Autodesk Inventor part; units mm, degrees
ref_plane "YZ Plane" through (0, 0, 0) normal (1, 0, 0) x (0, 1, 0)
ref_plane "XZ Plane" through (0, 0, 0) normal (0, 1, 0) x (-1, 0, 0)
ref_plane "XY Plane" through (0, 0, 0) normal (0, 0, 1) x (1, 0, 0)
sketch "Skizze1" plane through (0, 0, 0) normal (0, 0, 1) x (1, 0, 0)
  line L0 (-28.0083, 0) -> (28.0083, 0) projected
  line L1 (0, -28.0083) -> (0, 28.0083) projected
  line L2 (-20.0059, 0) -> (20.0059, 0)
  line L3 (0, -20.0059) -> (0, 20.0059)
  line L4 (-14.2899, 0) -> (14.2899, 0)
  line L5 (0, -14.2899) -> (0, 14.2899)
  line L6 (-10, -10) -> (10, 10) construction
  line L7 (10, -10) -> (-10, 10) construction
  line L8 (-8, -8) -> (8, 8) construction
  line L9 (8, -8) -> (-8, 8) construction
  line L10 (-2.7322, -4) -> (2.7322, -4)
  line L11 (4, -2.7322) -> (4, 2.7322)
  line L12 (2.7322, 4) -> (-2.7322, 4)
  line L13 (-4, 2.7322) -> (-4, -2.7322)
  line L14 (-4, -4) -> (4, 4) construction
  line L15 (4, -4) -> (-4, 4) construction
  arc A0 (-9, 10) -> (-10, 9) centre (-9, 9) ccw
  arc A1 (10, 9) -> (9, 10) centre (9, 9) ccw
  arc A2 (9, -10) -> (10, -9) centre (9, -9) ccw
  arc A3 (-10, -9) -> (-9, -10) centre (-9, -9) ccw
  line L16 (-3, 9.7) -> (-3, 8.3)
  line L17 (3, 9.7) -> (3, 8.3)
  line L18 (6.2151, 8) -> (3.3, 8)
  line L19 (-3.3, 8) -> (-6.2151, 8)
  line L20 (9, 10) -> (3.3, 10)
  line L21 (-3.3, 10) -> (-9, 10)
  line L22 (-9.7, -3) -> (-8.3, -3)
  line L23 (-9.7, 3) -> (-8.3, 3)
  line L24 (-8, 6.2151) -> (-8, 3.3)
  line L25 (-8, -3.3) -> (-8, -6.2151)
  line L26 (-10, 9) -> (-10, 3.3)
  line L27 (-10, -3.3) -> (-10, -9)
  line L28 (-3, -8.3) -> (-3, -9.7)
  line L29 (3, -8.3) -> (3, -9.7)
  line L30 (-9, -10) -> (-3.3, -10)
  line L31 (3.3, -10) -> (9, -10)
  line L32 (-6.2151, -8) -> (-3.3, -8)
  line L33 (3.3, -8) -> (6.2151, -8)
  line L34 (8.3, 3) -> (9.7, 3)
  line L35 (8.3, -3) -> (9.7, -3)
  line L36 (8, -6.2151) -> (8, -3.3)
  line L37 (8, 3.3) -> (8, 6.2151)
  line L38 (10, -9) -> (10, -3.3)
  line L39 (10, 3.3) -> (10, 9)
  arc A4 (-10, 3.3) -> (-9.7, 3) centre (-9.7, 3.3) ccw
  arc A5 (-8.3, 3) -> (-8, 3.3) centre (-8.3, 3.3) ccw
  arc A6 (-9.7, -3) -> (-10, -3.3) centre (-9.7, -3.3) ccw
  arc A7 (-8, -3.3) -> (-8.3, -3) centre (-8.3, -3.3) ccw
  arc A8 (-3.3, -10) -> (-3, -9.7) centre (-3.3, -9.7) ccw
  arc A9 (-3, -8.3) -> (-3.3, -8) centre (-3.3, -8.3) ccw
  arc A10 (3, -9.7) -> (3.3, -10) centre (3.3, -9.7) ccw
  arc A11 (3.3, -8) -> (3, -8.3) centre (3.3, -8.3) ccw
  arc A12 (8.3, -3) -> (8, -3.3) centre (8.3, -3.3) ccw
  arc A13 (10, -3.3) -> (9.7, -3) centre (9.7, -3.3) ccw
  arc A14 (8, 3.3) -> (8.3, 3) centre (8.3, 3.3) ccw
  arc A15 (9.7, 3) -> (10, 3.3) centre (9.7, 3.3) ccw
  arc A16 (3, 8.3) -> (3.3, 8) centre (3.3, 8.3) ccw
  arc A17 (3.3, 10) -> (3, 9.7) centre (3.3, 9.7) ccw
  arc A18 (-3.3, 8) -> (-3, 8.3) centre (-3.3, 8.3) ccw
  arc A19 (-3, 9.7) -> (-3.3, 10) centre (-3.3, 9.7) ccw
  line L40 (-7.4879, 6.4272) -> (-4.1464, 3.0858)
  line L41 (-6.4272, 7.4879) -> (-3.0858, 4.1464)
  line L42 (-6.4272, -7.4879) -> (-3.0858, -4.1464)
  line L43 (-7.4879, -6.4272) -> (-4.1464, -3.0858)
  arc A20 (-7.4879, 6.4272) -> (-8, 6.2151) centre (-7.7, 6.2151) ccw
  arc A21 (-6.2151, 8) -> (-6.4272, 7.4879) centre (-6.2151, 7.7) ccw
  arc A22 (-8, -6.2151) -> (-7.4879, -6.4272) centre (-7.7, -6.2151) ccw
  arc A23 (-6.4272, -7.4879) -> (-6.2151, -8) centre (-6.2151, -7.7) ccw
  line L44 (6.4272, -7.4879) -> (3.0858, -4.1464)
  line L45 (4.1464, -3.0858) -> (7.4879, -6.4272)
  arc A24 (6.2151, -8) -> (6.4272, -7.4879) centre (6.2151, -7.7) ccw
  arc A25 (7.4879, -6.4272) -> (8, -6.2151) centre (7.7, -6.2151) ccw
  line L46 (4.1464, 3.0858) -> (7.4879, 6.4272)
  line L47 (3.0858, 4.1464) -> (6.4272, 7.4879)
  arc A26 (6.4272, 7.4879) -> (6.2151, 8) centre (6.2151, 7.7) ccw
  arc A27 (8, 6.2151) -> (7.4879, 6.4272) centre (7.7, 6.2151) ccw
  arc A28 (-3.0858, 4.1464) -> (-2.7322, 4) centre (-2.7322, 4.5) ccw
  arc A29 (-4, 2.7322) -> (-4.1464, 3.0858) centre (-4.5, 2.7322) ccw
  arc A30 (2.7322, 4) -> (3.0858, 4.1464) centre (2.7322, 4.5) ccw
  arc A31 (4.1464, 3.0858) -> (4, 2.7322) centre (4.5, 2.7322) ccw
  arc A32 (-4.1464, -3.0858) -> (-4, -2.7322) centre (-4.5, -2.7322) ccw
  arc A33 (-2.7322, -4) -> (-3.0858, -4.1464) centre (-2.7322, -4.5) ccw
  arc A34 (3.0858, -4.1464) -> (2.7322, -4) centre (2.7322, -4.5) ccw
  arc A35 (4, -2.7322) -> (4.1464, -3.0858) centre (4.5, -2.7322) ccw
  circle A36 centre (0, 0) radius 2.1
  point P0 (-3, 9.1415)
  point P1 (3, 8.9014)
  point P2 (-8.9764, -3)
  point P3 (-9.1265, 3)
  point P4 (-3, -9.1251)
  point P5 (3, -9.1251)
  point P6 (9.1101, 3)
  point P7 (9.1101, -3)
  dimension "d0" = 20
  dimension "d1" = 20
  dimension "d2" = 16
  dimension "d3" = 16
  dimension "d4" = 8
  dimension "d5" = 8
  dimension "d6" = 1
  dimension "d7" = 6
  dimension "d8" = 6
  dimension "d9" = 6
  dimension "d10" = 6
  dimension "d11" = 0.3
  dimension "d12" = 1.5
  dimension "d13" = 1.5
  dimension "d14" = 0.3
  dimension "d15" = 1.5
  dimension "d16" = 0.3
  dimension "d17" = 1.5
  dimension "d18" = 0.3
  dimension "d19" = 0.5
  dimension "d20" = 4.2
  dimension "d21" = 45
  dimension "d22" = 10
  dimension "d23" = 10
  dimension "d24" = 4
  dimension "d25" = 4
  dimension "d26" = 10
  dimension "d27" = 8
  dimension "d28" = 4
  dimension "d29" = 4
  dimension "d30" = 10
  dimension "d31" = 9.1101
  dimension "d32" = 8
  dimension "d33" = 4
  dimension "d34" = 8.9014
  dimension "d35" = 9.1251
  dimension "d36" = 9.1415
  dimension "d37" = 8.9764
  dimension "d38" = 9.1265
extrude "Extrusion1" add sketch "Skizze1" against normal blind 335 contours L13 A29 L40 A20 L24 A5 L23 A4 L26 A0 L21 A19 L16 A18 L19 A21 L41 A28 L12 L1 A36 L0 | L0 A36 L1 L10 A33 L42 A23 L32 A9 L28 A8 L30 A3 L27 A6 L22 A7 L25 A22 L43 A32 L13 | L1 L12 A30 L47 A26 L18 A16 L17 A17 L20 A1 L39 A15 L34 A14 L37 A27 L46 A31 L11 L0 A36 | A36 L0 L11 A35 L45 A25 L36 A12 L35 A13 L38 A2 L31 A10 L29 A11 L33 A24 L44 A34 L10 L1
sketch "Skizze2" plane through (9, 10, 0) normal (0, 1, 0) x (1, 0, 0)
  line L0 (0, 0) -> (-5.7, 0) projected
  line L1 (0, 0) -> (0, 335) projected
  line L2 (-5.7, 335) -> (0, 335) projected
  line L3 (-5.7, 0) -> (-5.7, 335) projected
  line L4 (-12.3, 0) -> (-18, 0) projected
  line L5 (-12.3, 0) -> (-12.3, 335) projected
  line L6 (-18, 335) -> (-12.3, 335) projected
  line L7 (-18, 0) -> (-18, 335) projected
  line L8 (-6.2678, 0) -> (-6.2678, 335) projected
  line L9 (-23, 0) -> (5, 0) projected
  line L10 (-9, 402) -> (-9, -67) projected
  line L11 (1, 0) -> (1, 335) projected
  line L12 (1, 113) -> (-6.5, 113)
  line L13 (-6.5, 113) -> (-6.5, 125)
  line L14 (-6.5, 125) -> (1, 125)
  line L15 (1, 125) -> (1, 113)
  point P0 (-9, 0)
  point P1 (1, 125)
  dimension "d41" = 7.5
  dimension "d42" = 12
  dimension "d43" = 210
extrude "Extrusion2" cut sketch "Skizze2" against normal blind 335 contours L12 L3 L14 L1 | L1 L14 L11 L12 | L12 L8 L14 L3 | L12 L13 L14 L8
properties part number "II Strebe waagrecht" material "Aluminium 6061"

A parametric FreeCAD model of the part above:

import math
import FreeCAD as App
import Part
import Sketcher
Q = App.Units.Quantity

doc = App.newDocument("Part")
body = doc.addObject("PartDesign::Body", "Body")

# Sketch on XY plane
sketch1 = body.newObject("Sketcher::SketchObject", "Sketch")
sketch1.AttachmentSupport = (doc.getObject("XY_Plane"), [""])
sketch1.MapMode = "FlatFace"
sketch1.addGeometry([
    Part.LineSegment(App.Vector(-4, 2.7322, 0), App.Vector(-4, -2.7322, 0)),  # 0
    Part.ArcOfCircle(Part.Circle(App.Vector(-4.5, -2.7322, 0), App.Vector(0, 0, 1), 0.500066), math.radians(-45), math.radians(0)),  # 1
    Part.LineSegment(App.Vector(-4.1464, -3.0858, 0), App.Vector(-7.4879, -6.4272, 0)),  # 2
    Part.ArcOfCircle(Part.Circle(App.Vector(-7.7, -6.2151, 0), App.Vector(0, 0, 1), 0.3), math.radians(180), math.radians(315)),  # 3
    Part.LineSegment(App.Vector(-8, -6.2151, 0), App.Vector(-8, -3.3, 0)),  # 4
    Part.ArcOfCircle(Part.Circle(App.Vector(-8.3, -3.3, 0), App.Vector(0, 0, 1), 0.3), math.radians(0), math.radians(90)),  # 5
    Part.LineSegment(App.Vector(-8.3, -3, 0), App.Vector(-9.7, -3, 0)),  # 6
    Part.ArcOfCircle(Part.Circle(App.Vector(-9.7, -3.3, 0), App.Vector(0, 0, 1), 0.3), math.radians(90), math.radians(180)),  # 7
    Part.LineSegment(App.Vector(-10, -3.3, 0), App.Vector(-10, -9, 0)),  # 8
    Part.ArcOfCircle(Part.Circle(App.Vector(-9, -9, 0), App.Vector(0, 0, 1), 1), math.radians(180), math.radians(270)),  # 9
    Part.LineSegment(App.Vector(-9, -10, 0), App.Vector(-3.3, -10, 0)),  # 10
    Part.ArcOfCircle(Part.Circle(App.Vector(-3.3, -9.7, 0), App.Vector(0, 0, 1), 0.3), math.radians(-90), math.radians(0)),  # 11
    Part.LineSegment(App.Vector(-3, -9.7, 0), App.Vector(-3, -8.3, 0)),  # 12
    Part.ArcOfCircle(Part.Circle(App.Vector(-3.3, -8.3, 0), App.Vector(0, 0, 1), 0.3), math.radians(0), math.radians(90)),  # 13
    Part.LineSegment(App.Vector(-3.3, -8, 0), App.Vector(-6.2151, -8, 0)),  # 14
    Part.ArcOfCircle(Part.Circle(App.Vector(-6.2151, -7.7, 0), App.Vector(0, 0, 1), 0.299955), math.radians(135), math.radians(270)),  # 15
    Part.LineSegment(App.Vector(-6.4272, -7.4879, 0), App.Vector(-3.0858, -4.1464, 0)),  # 16
    Part.ArcOfCircle(Part.Circle(App.Vector(-2.7322, -4.5, 0), App.Vector(0, 0, 1), 0.5), math.radians(90), math.radians(135)),  # 17
    Part.LineSegment(App.Vector(-2.7322, -4, 0), App.Vector(2.7322, -4, 0)),  # 18
    Part.ArcOfCircle(Part.Circle(App.Vector(2.7322, -4.5, 0), App.Vector(0, 0, 1), 0.500066), math.radians(45), math.radians(90)),  # 19
    Part.LineSegment(App.Vector(3.0858, -4.1464, 0), App.Vector(6.4272, -7.4879, 0)),  # 20
    Part.ArcOfCircle(Part.Circle(App.Vector(6.2151, -7.7, 0), App.Vector(0, 0, 1), 0.3), math.radians(-90), math.radians(45)),  # 21
    Part.LineSegment(App.Vector(6.2151, -8, 0), App.Vector(3.3, -8, 0)),  # 22
    Part.ArcOfCircle(Part.Circle(App.Vector(3.3, -8.3, 0), App.Vector(0, 0, 1), 0.3), math.radians(90), math.radians(180)),  # 23
    Part.LineSegment(App.Vector(3, -8.3, 0), App.Vector(3, -9.7, 0)),  # 24
    Part.ArcOfCircle(Part.Circle(App.Vector(3.3, -9.7, 0), App.Vector(0, 0, 1), 0.3), math.radians(180), math.radians(270)),  # 25
    Part.LineSegment(App.Vector(3.3, -10, 0), App.Vector(9, -10, 0)),  # 26
    Part.ArcOfCircle(Part.Circle(App.Vector(9, -9, 0), App.Vector(0, 0, 1), 1), math.radians(-90), math.radians(0)),  # 27
    Part.LineSegment(App.Vector(10, -9, 0), App.Vector(10, -3.3, 0)),  # 28
    Part.ArcOfCircle(Part.Circle(App.Vector(9.7, -3.3, 0), App.Vector(0, 0, 1), 0.3), math.radians(0), math.radians(90)),  # 29
    Part.LineSegment(App.Vector(9.7, -3, 0), App.Vector(8.3, -3, 0)),  # 30
    Part.ArcOfCircle(Part.Circle(App.Vector(8.3, -3.3, 0), App.Vector(0, 0, 1), 0.3), math.radians(90), math.radians(180)),  # 31
    Part.LineSegment(App.Vector(8, -3.3, 0), App.Vector(8, -6.2151, 0)),  # 32
    Part.ArcOfCircle(Part.Circle(App.Vector(7.7, -6.2151, 0), App.Vector(0, 0, 1), 0.299955), math.radians(-135), math.radians(0)),  # 33
    Part.LineSegment(App.Vector(7.4879, -6.4272, 0), App.Vector(4.1464, -3.0858, 0)),  # 34
    Part.ArcOfCircle(Part.Circle(App.Vector(4.5, -2.7322, 0), App.Vector(0, 0, 1), 0.5), math.radians(180), math.radians(225)),  # 35
    Part.LineSegment(App.Vector(4, -2.7322, 0), App.Vector(4, 2.7322, 0)),  # 36
    Part.ArcOfCircle(Part.Circle(App.Vector(4.5, 2.7322, 0), App.Vector(0, 0, 1), 0.500066), math.radians(135), math.radians(180)),  # 37
    Part.LineSegment(App.Vector(4.1464, 3.0858, 0), App.Vector(7.4879, 6.4272, 0)),  # 38
    Part.ArcOfCircle(Part.Circle(App.Vector(7.7, 6.2151, 0), App.Vector(0, 0, 1), 0.3), math.radians(0), math.radians(135)),  # 39
    Part.LineSegment(App.Vector(8, 6.2151, 0), App.Vector(8, 3.3, 0)),  # 40
    Part.ArcOfCircle(Part.Circle(App.Vector(8.3, 3.3, 0), App.Vector(0, 0, 1), 0.3), math.radians(180), math.radians(270)),  # 41
    Part.LineSegment(App.Vector(8.3, 3, 0), App.Vector(9.7, 3, 0)),  # 42
    Part.ArcOfCircle(Part.Circle(App.Vector(9.7, 3.3, 0), App.Vector(0, 0, 1), 0.3), math.radians(-90), math.radians(0)),  # 43
    Part.LineSegment(App.Vector(10, 3.3, 0), App.Vector(10, 9, 0)),  # 44
    Part.ArcOfCircle(Part.Circle(App.Vector(9, 9, 0), App.Vector(0, 0, 1), 1), math.radians(0), math.radians(90)),  # 45
    Part.LineSegment(App.Vector(9, 10, 0), App.Vector(3.3, 10, 0)),  # 46
    Part.ArcOfCircle(Part.Circle(App.Vector(3.3, 9.7, 0), App.Vector(0, 0, 1), 0.3), math.radians(90), math.radians(180)),  # 47
    Part.LineSegment(App.Vector(3, 9.7, 0), App.Vector(3, 8.3, 0)),  # 48
    Part.ArcOfCircle(Part.Circle(App.Vector(3.3, 8.3, 0), App.Vector(0, 0, 1), 0.3), math.radians(180), math.radians(270)),  # 49
    Part.LineSegment(App.Vector(3.3, 8, 0), App.Vector(6.2151, 8, 0)),  # 50
    Part.ArcOfCircle(Part.Circle(App.Vector(6.2151, 7.7, 0), App.Vector(0, 0, 1), 0.299955), math.radians(-45), math.radians(90)),  # 51
    Part.LineSegment(App.Vector(6.4272, 7.4879, 0), App.Vector(3.0858, 4.1464, 0)),  # 52
    Part.ArcOfCircle(Part.Circle(App.Vector(2.7322, 4.5, 0), App.Vector(0, 0, 1), 0.5), math.radians(-90), math.radians(-45)),  # 53
    Part.LineSegment(App.Vector(2.7322, 4, 0), App.Vector(-2.7322, 4, 0)),  # 54
    Part.ArcOfCircle(Part.Circle(App.Vector(-2.7322, 4.5, 0), App.Vector(0, 0, 1), 0.500066), math.radians(-135), math.radians(-90)),  # 55
    Part.LineSegment(App.Vector(-3.0858, 4.1464, 0), App.Vector(-6.4272, 7.4879, 0)),  # 56
    Part.ArcOfCircle(Part.Circle(App.Vector(-6.2151, 7.7, 0), App.Vector(0, 0, 1), 0.3), math.radians(90), math.radians(225)),  # 57
    Part.LineSegment(App.Vector(-6.2151, 8, 0), App.Vector(-3.3, 8, 0)),  # 58
    Part.ArcOfCircle(Part.Circle(App.Vector(-3.3, 8.3, 0), App.Vector(0, 0, 1), 0.3), math.radians(-90), math.radians(0)),  # 59
    Part.LineSegment(App.Vector(-3, 8.3, 0), App.Vector(-3, 9.7, 0)),  # 60
    Part.ArcOfCircle(Part.Circle(App.Vector(-3.3, 9.7, 0), App.Vector(0, 0, 1), 0.3), math.radians(0), math.radians(90)),  # 61
    Part.LineSegment(App.Vector(-3.3, 10, 0), App.Vector(-9, 10, 0)),  # 62
    Part.ArcOfCircle(Part.Circle(App.Vector(-9, 9, 0), App.Vector(0, 0, 1), 1), math.radians(90), math.radians(180)),  # 63
    Part.LineSegment(App.Vector(-10, 9, 0), App.Vector(-10, 3.3, 0)),  # 64
    Part.ArcOfCircle(Part.Circle(App.Vector(-9.7, 3.3, 0), App.Vector(0, 0, 1), 0.3), math.radians(180), math.radians(270)),  # 65
    Part.LineSegment(App.Vector(-9.7, 3, 0), App.Vector(-8.3, 3, 0)),  # 66
    Part.ArcOfCircle(Part.Circle(App.Vector(-8.3, 3.3, 0), App.Vector(0, 0, 1), 0.3), math.radians(-90), math.radians(0)),  # 67
    Part.LineSegment(App.Vector(-8, 3.3, 0), App.Vector(-8, 6.2151, 0)),  # 68
    Part.ArcOfCircle(Part.Circle(App.Vector(-7.7, 6.2151, 0), App.Vector(0, 0, 1), 0.299955), math.radians(45), math.radians(180)),  # 69
    Part.LineSegment(App.Vector(-7.4879, 6.4272, 0), App.Vector(-4.1464, 3.0858, 0)),  # 70
    Part.ArcOfCircle(Part.Circle(App.Vector(-4.5, 2.7322, 0), App.Vector(0, 0, 1), 0.5), math.radians(0), math.radians(45)),  # 71
    Part.Circle(App.Vector(0, 0, 0), App.Vector(0, 0, 1), 2.1),  # 72
], False)
sketch1.addConstraint([
    Sketcher.Constraint("Tangent", 0, 2, 1, 2),
    Sketcher.Constraint("Tangent", 1, 1, 2, 1),
    Sketcher.Constraint("Tangent", 2, 2, 3, 2),
    Sketcher.Constraint("Tangent", 3, 1, 4, 1),
    Sketcher.Constraint("Tangent", 4, 2, 5, 1),
    Sketcher.Constraint("Tangent", 5, 2, 6, 1),
    Sketcher.Constraint("Tangent", 6, 2, 7, 1),
    Sketcher.Constraint("Tangent", 7, 2, 8, 1),
    Sketcher.Constraint("Tangent", 8, 2, 9, 1),
    Sketcher.Constraint("Tangent", 9, 2, 10, 1),
    Sketcher.Constraint("Tangent", 10, 2, 11, 1),
    Sketcher.Constraint("Tangent", 11, 2, 12, 1),
    Sketcher.Constraint("Tangent", 12, 2, 13, 1),
    Sketcher.Constraint("Tangent", 13, 2, 14, 1),
    Sketcher.Constraint("Tangent", 14, 2, 15, 2),
    Sketcher.Constraint("Tangent", 15, 1, 16, 1),
    Sketcher.Constraint("Tangent", 16, 2, 17, 2),
    Sketcher.Constraint("Tangent", 17, 1, 18, 1),
    Sketcher.Constraint("Tangent", 18, 2, 19, 2),
    Sketcher.Constraint("Tangent", 19, 1, 20, 1),
    Sketcher.Constraint("Tangent", 20, 2, 21, 2),
    Sketcher.Constraint("Tangent", 21, 1, 22, 1),
    Sketcher.Constraint("Tangent", 22, 2, 23, 1),
    Sketcher.Constraint("Tangent", 23, 2, 24, 1),
    Sketcher.Constraint("Tangent", 24, 2, 25, 1),
    Sketcher.Constraint("Tangent", 25, 2, 26, 1),
    Sketcher.Constraint("Tangent", 26, 2, 27, 1),
    Sketcher.Constraint("Tangent", 27, 2, 28, 1),
    Sketcher.Constraint("Tangent", 28, 2, 29, 1),
    Sketcher.Constraint("Tangent", 29, 2, 30, 1),
    Sketcher.Constraint("Tangent", 30, 2, 31, 1),
    Sketcher.Constraint("Tangent", 31, 2, 32, 1),
    Sketcher.Constraint("Tangent", 32, 2, 33, 2),
    Sketcher.Constraint("Tangent", 33, 1, 34, 1),
    Sketcher.Constraint("Tangent", 34, 2, 35, 2),
    Sketcher.Constraint("Tangent", 35, 1, 36, 1),
    Sketcher.Constraint("Tangent", 36, 2, 37, 2),
    Sketcher.Constraint("Tangent", 37, 1, 38, 1),
    Sketcher.Constraint("Tangent", 38, 2, 39, 2),
    Sketcher.Constraint("Tangent", 39, 1, 40, 1),
    Sketcher.Constraint("Tangent", 40, 2, 41, 1),
    Sketcher.Constraint("Tangent", 41, 2, 42, 1),
    Sketcher.Constraint("Tangent", 42, 2, 43, 1),
    Sketcher.Constraint("Tangent", 43, 2, 44, 1),
    Sketcher.Constraint("Tangent", 44, 2, 45, 1),
    Sketcher.Constraint("Tangent", 45, 2, 46, 1),
    Sketcher.Constraint("Tangent", 46, 2, 47, 1),
    Sketcher.Constraint("Tangent", 47, 2, 48, 1),
    Sketcher.Constraint("Tangent", 48, 2, 49, 1),
    Sketcher.Constraint("Tangent", 49, 2, 50, 1),
    Sketcher.Constraint("Tangent", 50, 2, 51, 2),
    Sketcher.Constraint("Tangent", 51, 1, 52, 1),
    Sketcher.Constraint("Tangent", 52, 2, 53, 2),
    Sketcher.Constraint("Tangent", 53, 1, 54, 1),
    Sketcher.Constraint("Tangent", 54, 2, 55, 2),
    Sketcher.Constraint("Tangent", 55, 1, 56, 1),
    Sketcher.Constraint("Tangent", 56, 2, 57, 2),
    Sketcher.Constraint("Tangent", 57, 1, 58, 1),
    Sketcher.Constraint("Tangent", 58, 2, 59, 1),
    Sketcher.Constraint("Tangent", 59, 2, 60, 1),
    Sketcher.Constraint("Tangent", 60, 2, 61, 1),
    Sketcher.Constraint("Tangent", 61, 2, 62, 1),
    Sketcher.Constraint("Tangent", 62, 2, 63, 1),
    Sketcher.Constraint("Tangent", 63, 2, 64, 1),
    Sketcher.Constraint("Tangent", 64, 2, 65, 1),
    Sketcher.Constraint("Tangent", 65, 2, 66, 1),
    Sketcher.Constraint("Tangent", 66, 2, 67, 1),
    Sketcher.Constraint("Tangent", 67, 2, 68, 1),
    Sketcher.Constraint("Tangent", 68, 2, 69, 2),
    Sketcher.Constraint("Tangent", 69, 1, 70, 1),
    Sketcher.Constraint("Tangent", 70, 2, 71, 2),
    Sketcher.Constraint("Tangent", 71, 1, 0, 1),
    Sketcher.Constraint("Vertical", 0),
    Sketcher.Constraint("Vertical", 4),
    Sketcher.Constraint("Horizontal", 6),
    Sketcher.Constraint("Vertical", 8),
    Sketcher.Constraint("Horizontal", 10),
    Sketcher.Constraint("Vertical", 12),
    Sketcher.Constraint("Horizontal", 14),
    Sketcher.Constraint("Horizontal", 18),
    Sketcher.Constraint("Horizontal", 22),
    Sketcher.Constraint("Vertical", 24),
    Sketcher.Constraint("Horizontal", 26),
    Sketcher.Constraint("Vertical", 28),
    Sketcher.Constraint("Horizontal", 30),
    Sketcher.Constraint("Vertical", 32),
    Sketcher.Constraint("Vertical", 36),
    Sketcher.Constraint("Vertical", 40),
    Sketcher.Constraint("Horizontal", 42),
    Sketcher.Constraint("Vertical", 44),
    Sketcher.Constraint("Horizontal", 46),
    Sketcher.Constraint("Vertical", 48),
    Sketcher.Constraint("Horizontal", 50),
    Sketcher.Constraint("Horizontal", 54),
    Sketcher.Constraint("Horizontal", 58),
    Sketcher.Constraint("Vertical", 60),
    Sketcher.Constraint("Horizontal", 62),
    Sketcher.Constraint("Vertical", 64),
    Sketcher.Constraint("Horizontal", 66),
    Sketcher.Constraint("Vertical", 68),
    Sketcher.Constraint("Coincident", 72, 3, -1, 1),
    Sketcher.Constraint("Equal", 3, 5),
    Sketcher.Constraint("Equal", 5, 7),
    Sketcher.Constraint("Equal", 7, 11),
    Sketcher.Constraint("Equal", 11, 13),
    Sketcher.Constraint("Equal", 13, 15),
    Sketcher.Constraint("Equal", 1, 17),
    Sketcher.Constraint("Equal", 17, 19),
    Sketcher.Constraint("Equal", 15, 21),
    Sketcher.Constraint("Equal", 21, 23),
    Sketcher.Constraint("Equal", 23, 25),
    Sketcher.Constraint("Equal", 9, 27),
    Sketcher.Constraint("Equal", 25, 29),
    Sketcher.Constraint("Equal", 29, 31),
    Sketcher.Constraint("Equal", 31, 33),
    Sketcher.Constraint("Equal", 19, 35),
    Sketcher.Constraint("Equal", 35, 37),
    Sketcher.Constraint("Equal", 33, 39),
    Sketcher.Constraint("Equal", 39, 41),
    Sketcher.Constraint("Equal", 41, 43),
    Sketcher.Constraint("Equal", 27, 45),
    Sketcher.Constraint("Equal", 43, 47),
    Sketcher.Constraint("Equal", 47, 49),
    Sketcher.Constraint("Equal", 49, 51),
    Sketcher.Constraint("Equal", 37, 53),
    Sketcher.Constraint("Equal", 53, 55),
    Sketcher.Constraint("Equal", 51, 57),
    Sketcher.Constraint("Equal", 57, 59),
    Sketcher.Constraint("Equal", 59, 61),
    Sketcher.Constraint("Equal", 45, 63),
    Sketcher.Constraint("Equal", 61, 65),
    Sketcher.Constraint("Equal", 65, 67),
    Sketcher.Constraint("Equal", 67, 69),
    Sketcher.Constraint("Equal", 55, 71),
    Sketcher.Constraint("Symmetric", 1, 3, 37, 3, -1, 1),
    Sketcher.Constraint("Symmetric", 3, 3, 39, 3, -1, 1),
    Sketcher.Constraint("Symmetric", 7, 3, 43, 3, -1, 1),
    Sketcher.Constraint("Symmetric", 11, 3, 47, 3, -1, 1),
    Sketcher.Constraint("Symmetric", 15, 3, 51, 3, -1, 1),
    Sketcher.Constraint("Symmetric", 17, 3, 53, 3, -1, 1),
    Sketcher.Constraint("Symmetric", 21, 3, 57, 3, -1, 1),
    Sketcher.Constraint("Symmetric", 25, 3, 61, 3, -1, 1),
    Sketcher.Constraint("Symmetric", 29, 3, 65, 3, -1, 1),
    Sketcher.Constraint("Symmetric", 33, 3, 69, 3, -1, 1),
    Sketcher.Constraint("Symmetric", 15, 3, 21, 3, -2),
    Sketcher.Constraint("Symmetric", 11, 3, 25, 3, -2),
    Sketcher.Constraint("Symmetric", 7, 3, 29, 3, -2),
    Sketcher.Constraint("Symmetric", 3, 3, 33, 3, -2),
    Sketcher.Constraint("Parallel", 2, 16),
    Sketcher.Constraint("Perpendicular", 16, 20),
    Sketcher.Constraint("Parallel", 20, 34),
    Sketcher.Constraint("Perpendicular", 52, 56),
    Sketcher.Constraint("Parallel", 56, 70),
    Sketcher.Constraint("Horizontal", 1, 3, 35, 3),
    Sketcher.Constraint("Equal", 54, 0),
    Sketcher.Constraint("Equal", 58, 4),
    Sketcher.Constraint("Equal", 62, 8),
    Sketcher.Constraint("Equal", 66, 12),
    Sketcher.Constraint("Equal", 2, 16),
    Sketcher.Constraint("Radius", 9, Q("1 mm")),
    Sketcher.Constraint("Diameter", 72, Q("4.2 mm")),
    Sketcher.Constraint("Radius", 1, Q("0.5 mm")),
    Sketcher.Constraint("Radius", 3, Q("0.3 mm")),
    Sketcher.Constraint("DistanceX", 0, 2, -1, 1, Q("4 mm")),
    Sketcher.Constraint("DistanceX", 3, 1, -1, 1, Q("8 mm")),
    Sketcher.Constraint("DistanceX", 7, 2, -1, 1, Q("10 mm")),
    Sketcher.Constraint("DistanceX", 10, 1, 10, 2, Q("5.7 mm")),
    Sketcher.Constraint("DistanceX", 14, 2, 14, 1, Q("2.915 mm")),
])
pad1 = body.newObject("PartDesign::Pad", "Pad")
pad1.Profile = sketch1
pad1.Length = 335
pad1.Reversed = True

# Sketch on XZ plane
sketch2 = body.newObject("Sketcher::SketchObject", "Sketch001")
sketch2.AttachmentSupport = (doc.getObject("XZ_Plane"), [""])
sketch2.MapMode = "FlatFace"
sketch2.AttachmentOffset = App.Placement(App.Vector(0, 0, -10), App.Rotation())
sketch2.addGeometry([
    Part.LineSegment(App.Vector(10, -113, 0), App.Vector(10, -125, 0)),
    Part.LineSegment(App.Vector(10, -125, 0), App.Vector(2.5, -125, 0)),
    Part.LineSegment(App.Vector(2.5, -125, 0), App.Vector(2.5, -113, 0)),
    Part.LineSegment(App.Vector(2.5, -113, 0), App.Vector(10, -113, 0)),
], False)
sketch2.addConstraint([
    Sketcher.Constraint("Coincident", 0, 2, 1, 1),
    Sketcher.Constraint("Coincident", 1, 2, 2, 1),
    Sketcher.Constraint("Coincident", 2, 2, 3, 1),
    Sketcher.Constraint("Coincident", 3, 2, 0, 1),
    Sketcher.Constraint("Vertical", 0),
    Sketcher.Constraint("Horizontal", 1),
    Sketcher.Constraint("Vertical", 2),
    Sketcher.Constraint("Horizontal", 3),
    Sketcher.Constraint("DistanceY", 0, 2, 0, 1, Q("12 mm")),
    Sketcher.Constraint("DistanceX", 1, 2, 1, 1, Q("7.5 mm")),
    Sketcher.Constraint("DistanceX", -1, 1, 0, 2, Q("10 mm")),
    Sketcher.Constraint("DistanceY", 0, 2, -1, 1, Q("125 mm")),
])
pocket1 = body.newObject("PartDesign::Pocket", "Pocket")
pocket1.Profile = sketch2
pocket1.Length = 335
pocket1.Reversed = True

doc.recompute()
